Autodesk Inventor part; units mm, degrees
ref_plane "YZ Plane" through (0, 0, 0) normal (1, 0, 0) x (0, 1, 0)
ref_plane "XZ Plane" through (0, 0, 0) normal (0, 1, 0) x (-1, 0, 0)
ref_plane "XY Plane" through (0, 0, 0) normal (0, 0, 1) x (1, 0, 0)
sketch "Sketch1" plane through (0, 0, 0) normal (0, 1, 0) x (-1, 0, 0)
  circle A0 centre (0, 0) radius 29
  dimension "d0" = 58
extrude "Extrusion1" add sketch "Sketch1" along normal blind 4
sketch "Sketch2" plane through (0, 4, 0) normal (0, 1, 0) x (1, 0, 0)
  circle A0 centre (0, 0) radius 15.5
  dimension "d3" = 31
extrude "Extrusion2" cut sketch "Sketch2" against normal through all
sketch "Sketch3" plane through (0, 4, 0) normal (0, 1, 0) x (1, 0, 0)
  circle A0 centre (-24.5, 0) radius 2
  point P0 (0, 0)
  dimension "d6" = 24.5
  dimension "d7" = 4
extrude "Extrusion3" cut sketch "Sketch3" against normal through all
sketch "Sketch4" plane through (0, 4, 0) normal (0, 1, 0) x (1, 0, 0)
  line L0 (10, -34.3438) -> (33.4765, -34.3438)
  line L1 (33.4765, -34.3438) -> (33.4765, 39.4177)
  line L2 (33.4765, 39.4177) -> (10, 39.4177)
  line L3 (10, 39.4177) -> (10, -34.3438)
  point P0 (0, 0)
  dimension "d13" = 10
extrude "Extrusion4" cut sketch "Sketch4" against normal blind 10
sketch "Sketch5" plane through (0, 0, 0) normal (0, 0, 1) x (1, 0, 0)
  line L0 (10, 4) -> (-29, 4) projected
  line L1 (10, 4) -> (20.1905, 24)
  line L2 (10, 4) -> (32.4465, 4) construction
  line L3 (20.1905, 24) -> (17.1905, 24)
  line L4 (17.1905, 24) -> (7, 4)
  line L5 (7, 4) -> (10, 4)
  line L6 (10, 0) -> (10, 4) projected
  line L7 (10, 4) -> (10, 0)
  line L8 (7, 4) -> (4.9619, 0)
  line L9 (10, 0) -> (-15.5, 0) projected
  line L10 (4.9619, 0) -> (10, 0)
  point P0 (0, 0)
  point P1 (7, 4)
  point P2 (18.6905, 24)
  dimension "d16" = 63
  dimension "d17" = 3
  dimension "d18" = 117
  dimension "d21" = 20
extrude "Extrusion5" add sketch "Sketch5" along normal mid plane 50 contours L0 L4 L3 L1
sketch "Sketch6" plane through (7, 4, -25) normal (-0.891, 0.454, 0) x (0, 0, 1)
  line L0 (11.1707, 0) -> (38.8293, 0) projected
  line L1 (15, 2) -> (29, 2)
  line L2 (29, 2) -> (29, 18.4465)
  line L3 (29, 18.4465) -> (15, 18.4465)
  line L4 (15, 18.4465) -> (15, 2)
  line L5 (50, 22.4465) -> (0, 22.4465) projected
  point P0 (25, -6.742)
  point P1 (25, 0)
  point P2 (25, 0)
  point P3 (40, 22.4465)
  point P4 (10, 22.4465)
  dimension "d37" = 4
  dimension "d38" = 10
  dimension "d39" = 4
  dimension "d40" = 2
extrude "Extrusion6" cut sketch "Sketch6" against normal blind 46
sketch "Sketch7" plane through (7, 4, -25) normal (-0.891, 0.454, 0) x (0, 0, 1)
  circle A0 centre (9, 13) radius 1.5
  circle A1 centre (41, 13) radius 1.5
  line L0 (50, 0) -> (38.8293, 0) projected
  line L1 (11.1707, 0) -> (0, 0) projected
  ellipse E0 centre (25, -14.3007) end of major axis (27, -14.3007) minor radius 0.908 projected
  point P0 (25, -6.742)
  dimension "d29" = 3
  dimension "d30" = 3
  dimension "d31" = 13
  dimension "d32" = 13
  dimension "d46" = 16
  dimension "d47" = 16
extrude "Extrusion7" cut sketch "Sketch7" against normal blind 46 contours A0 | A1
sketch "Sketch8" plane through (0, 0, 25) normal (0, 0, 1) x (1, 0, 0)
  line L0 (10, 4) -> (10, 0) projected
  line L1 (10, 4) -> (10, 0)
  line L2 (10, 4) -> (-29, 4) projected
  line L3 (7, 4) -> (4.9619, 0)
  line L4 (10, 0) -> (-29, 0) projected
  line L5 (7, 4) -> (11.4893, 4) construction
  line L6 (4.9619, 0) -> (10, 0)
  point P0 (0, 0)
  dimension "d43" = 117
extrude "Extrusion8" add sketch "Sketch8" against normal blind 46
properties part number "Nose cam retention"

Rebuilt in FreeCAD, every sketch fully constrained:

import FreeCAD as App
import Part
import Sketcher
from FreeCAD import Vector
Q = App.Units.Quantity

doc = App.newDocument("Part")
params = doc.addObject("Spreadsheet::Sheet", "Params")
for row, (alias, value) in enumerate([
    ("sketch1_diameter", "58 mm"),
    ("pad1_length", "4 mm"),
    ("sketch2_diameter", "31 mm"),
    ("sketch3_diameter", "4 mm"),
    ("pocket3_length", "10 mm"),
    ("sketch5_width", "3 mm"),
    ("pad2_length", "50 mm"),
    ("sketch6_width", "14 mm"),
    ("pocket4_length", "46 mm"),
    ("sketch7_diameter", "3 mm"),
    ("pocket5_length", "46 mm"),
    ("sketch8_width", "3 mm"),
    ("sketch8_height", "4 mm"),
    ("pad3_length", "46 mm"),
], start=1):
    params.set(f"A{row}", alias)
    params.set(f"B{row}", "=" + value)
    params.setAlias(f"B{row}", alias)

body = doc.addObject("PartDesign::Body", "Body")

# Sketch on XZ plane
sketch1 = body.newObject("Sketcher::SketchObject", "Sketch")
sketch1.AttachmentSupport = (doc.getObject("XZ_Plane"), [""])
sketch1.MapMode = "FlatFace"
sketch1.addGeometry(Part.Circle(Vector(0, 0, 0), Vector(0, 0, 1), 29), False)
sketch1.addConstraint([
    Sketcher.Constraint("Coincident", 0, 3, -1, 1),
    Sketcher.Constraint("Diameter", 0, Q("58 mm")),
])
sketch1.setExpression("Constraints[1]", "Params.sketch1_diameter")
pad1 = body.newObject("PartDesign::Pad", "Pad")
pad1.Profile = sketch1
pad1.setExpression("Length", "Params.pad1_length")
pad1.Reversed = True

# Sketch on XZ plane
sketch2 = body.newObject("Sketcher::SketchObject", "Sketch001")
sketch2.AttachmentSupport = (doc.getObject("XZ_Plane"), [""])
sketch2.MapMode = "FlatFace"
sketch2.AttachmentOffset = App.Placement(Vector(0, 0, -4), App.Rotation())
sketch2.addGeometry(Part.Circle(Vector(0, 0, 0), Vector(0, 0, 1), 16), False)
sketch2.addConstraint([
    Sketcher.Constraint("Coincident", 0, 3, -1, 1),
    Sketcher.Constraint("Diameter", 0, Q("31 mm")),
])
sketch2.setExpression("Constraints[1]", "Params.sketch2_diameter")
pocket1 = body.newObject("PartDesign::Pocket", "Pocket")
pocket1.Profile = sketch2
pocket1.Type = "ThroughAll"
pocket1.Reversed = True

# Sketch on XZ plane
sketch3 = body.newObject("Sketcher::SketchObject", "Sketch002")
sketch3.AttachmentSupport = (doc.getObject("XZ_Plane"), [""])
sketch3.MapMode = "FlatFace"
sketch3.AttachmentOffset = App.Placement(Vector(0, 0, -4), App.Rotation())
sketch3.addGeometry(Part.Circle(Vector(-24.5, 0, 0), Vector(0, 0, 1), 2), False)
sketch3.addConstraint([
    Sketcher.Constraint("PointOnObject", 0, 3, -1),
    Sketcher.Constraint("Diameter", 0, Q("4 mm")),
    Sketcher.Constraint("DistanceX", 0, 3, -1, 1, Q("24.5 mm")),
])
sketch3.setExpression("Constraints[1]", "Params.sketch3_diameter")
pocket2 = body.newObject("PartDesign::Pocket", "Pocket001")
pocket2.Profile = sketch3
pocket2.Type = "ThroughAll"
pocket2.Reversed = True

# Sketch on XZ plane
sketch4 = body.newObject("Sketcher::SketchObject", "Sketch003")
sketch4.AttachmentSupport = (doc.getObject("XZ_Plane"), [""])
sketch4.MapMode = "FlatFace"
sketch4.AttachmentOffset = App.Placement(Vector(0, 0, -4), App.Rotation())
sketch4.addGeometry([
    Part.LineSegment(Vector(10, -39, 0), Vector(10, 34, 0)),
    Part.LineSegment(Vector(10, 34, 0), Vector(33, 34, 0)),
    Part.LineSegment(Vector(33, 34, 0), Vector(33, -39, 0)),
    Part.LineSegment(Vector(33, -39, 0), Vector(10, -39, 0)),
], False)
sketch4.addConstraint([
    Sketcher.Constraint("Coincident", 0, 2, 1, 1),
    Sketcher.Constraint("Coincident", 1, 2, 2, 1),
    Sketcher.Constraint("Coincident", 2, 2, 3, 1),
    Sketcher.Constraint("Coincident", 3, 2, 0, 1),
    Sketcher.Constraint("Vertical", 0),
    Sketcher.Constraint("Horizontal", 1),
    Sketcher.Constraint("Vertical", 2),
    Sketcher.Constraint("Horizontal", 3),
    Sketcher.Constraint("DistanceX", -1, 1, 0, 2, Q("10 mm")),
    Sketcher.Constraint("DistanceX", 1, 1, 1, 2, Q("23.4765 mm")),
    Sketcher.Constraint("DistanceY", 0, 1, 0, 2, Q("73.7615 mm")),
    Sketcher.Constraint("DistanceY", -1, 1, 0, 2, Q("34.3438 mm")),
])
pocket3 = body.newObject("PartDesign::Pocket", "Pocket002")
pocket3.Profile = sketch4
pocket3.setExpression("Length", "Params.pocket3_length")
pocket3.Reversed = True

# Sketch on XY plane
sketch5 = body.newObject("Sketcher::SketchObject", "Sketch004")
sketch5.AttachmentSupport = (doc.getObject("XY_Plane"), [""])
sketch5.MapMode = "FlatFace"
sketch5.addGeometry([
    Part.LineSegment(Vector(7, 4, 0), Vector(10, 4, 0)),
    Part.LineSegment(Vector(10, 4, 0), Vector(20.2, 24, 0)),
    Part.LineSegment(Vector(20.2, 24, 0), Vector(17.2, 24, 0)),
    Part.LineSegment(Vector(17.2, 24, 0), Vector(7, 4, 0)),
], False)
sketch5.addConstraint([
    Sketcher.Constraint("Coincident", 0, 2, 1, 1),
    Sketcher.Constraint("Coincident", 1, 2, 2, 1),
    Sketcher.Constraint("Coincident", 2, 2, 3, 1),
    Sketcher.Constraint("Coincident", 3, 2, 0, 1),
    Sketcher.Constraint("Horizontal", 0),
    Sketcher.Constraint("Horizontal", 2),
    Sketcher.Constraint("Parallel", 1, 3),
    Sketcher.Constraint("DistanceX", 0, 1, 0, 2, Q("3 mm")),
    Sketcher.Constraint("Angle", 1, Q("63 deg")),
    Sketcher.Constraint("DistanceY", 0, 2, 1, 2, Q("20 mm")),
    Sketcher.Constraint("DistanceX", -1, 1, 0, 2, Q("10 mm")),
    Sketcher.Constraint("DistanceY", -1, 1, 0, 2, Q("4 mm")),
])
sketch5.setExpression("Constraints[7]", "Params.sketch5_width")
pad2 = body.newObject("PartDesign::Pad", "Pad001")
pad2.Profile = sketch5
pad2.setExpression("Length", "Params.pad2_length")
pad2.Midplane = True

# Sketch on an angled plane
sketch6 = body.newObject("Sketcher::SketchObject", "Sketch005")
sketch6.Placement = App.Placement(Vector(7, 4, -25), App.Rotation(Vector(0, 0, 1), Vector(0.4539905, 0.891006524, 0), Vector(-0.891006524, 0.4539905, 0), "ZXY"))
sketch6.addGeometry([
    Part.LineSegment(Vector(15, 18, 0), Vector(15, 2, 0)),
    Part.LineSegment(Vector(15, 2, 0), Vector(29, 2, 0)),
    Part.LineSegment(Vector(29, 2, 0), Vector(29, 18, 0)),
    Part.LineSegment(Vector(29, 18, 0), Vector(15, 18, 0)),
], False)
sketch6.addConstraint([
    Sketcher.Constraint("Coincident", 0, 2, 1, 1),
    Sketcher.Constraint("Coincident", 1, 2, 2, 1),
    Sketcher.Constraint("Coincident", 2, 2, 3, 1),
    Sketcher.Constraint("Coincident", 3, 2, 0, 1),
    Sketcher.Constraint("Vertical", 0),
    Sketcher.Constraint("Horizontal", 1),
    Sketcher.Constraint("Vertical", 2),
    Sketcher.Constraint("Horizontal", 3),
    Sketcher.Constraint("DistanceY", -1, 1, 0, 2, Q("2 mm")),
    Sketcher.Constraint("DistanceX", 1, 1, 1, 2, Q("14 mm")),
    Sketcher.Constraint("DistanceX", -1, 1, 0, 2, Q("15 mm")),
    Sketcher.Constraint("DistanceY", 0, 2, 0, 1, Q("16.4465 mm")),
])
sketch6.setExpression("Constraints[9]", "Params.sketch6_width")
pocket4 = body.newObject("PartDesign::Pocket", "Pocket003")
pocket4.Profile = sketch6
pocket4.setExpression("Length", "Params.pocket4_length")

# Sketch on an angled plane
sketch7 = body.newObject("Sketcher::SketchObject", "Sketch006")
sketch7.Placement = App.Placement(Vector(7, 4, -25), App.Rotation(Vector(0, 0, 1), Vector(0.4539905, 0.891006524, 0), Vector(-0.891006524, 0.4539905, 0), "ZXY"))
sketch7.addGeometry([
    Part.Circle(Vector(9, 13, 0), Vector(0, 0, 1), 1.5),
    Part.Circle(Vector(41, 13, 0), Vector(0, 0, 1), 1.5),
], False)
sketch7.addConstraint([
    Sketcher.Constraint("Equal", 0, 1),
    Sketcher.Constraint("Horizontal", 0, 3, 1, 3),
    Sketcher.Constraint("Diameter", 0, Q("3 mm")),
    Sketcher.Constraint("DistanceY", -1, 1, 0, 3, Q("13 mm")),
    Sketcher.Constraint("DistanceX", -1, 1, 0, 3, Q("9 mm")),
    Sketcher.Constraint("DistanceX", -1, 1, 1, 3, Q("41 mm")),
])
sketch7.setExpression("Constraints[2]", "Params.sketch7_diameter")
pocket5 = body.newObject("PartDesign::Pocket", "Pocket004")
pocket5.Profile = sketch7
pocket5.setExpression("Length", "Params.pocket5_length")

# Sketch on XY plane
sketch8 = body.newObject("Sketcher::SketchObject", "Sketch007")
sketch8.AttachmentSupport = (doc.getObject("XY_Plane"), [""])
sketch8.MapMode = "FlatFace"
sketch8.AttachmentOffset = App.Placement(Vector(0, 0, 25), App.Rotation())
sketch8.addGeometry([
    Part.LineSegment(Vector(10, 0, 0), Vector(10, 4, 0)),
    Part.LineSegment(Vector(10, 4, 0), Vector(7, 4, 0)),
    Part.LineSegment(Vector(7, 4, 0), Vector(5, 0, 0)),
    Part.LineSegment(Vector(5, 0, 0), Vector(10, 0, 0)),
], False)
sketch8.addConstraint([
    Sketcher.Constraint("Coincident", 0, 2, 1, 1),
    Sketcher.Constraint("Coincident", 1, 2, 2, 1),
    Sketcher.Constraint("Coincident", 2, 2, 3, 1),
    Sketcher.Constraint("Coincident", 3, 2, 0, 1),
    Sketcher.Constraint("Vertical", 0),
    Sketcher.Constraint("Horizontal", 1),
    Sketcher.Constraint("Horizontal", 3),
    Sketcher.Constraint("PointOnObject", 2, 2, -1),
    Sketcher.Constraint("Angle", 2, Q("-117 deg")),
    Sketcher.Constraint("DistanceX", 1, 2, 1, 1, Q("3 mm")),
    Sketcher.Constraint("DistanceY", 0, 1, 0, 2, Q("4 mm")),
    Sketcher.Constraint("DistanceX", -1, 1, 0, 2, Q("10 mm")),
])
sketch8.setExpression("Constraints[9]", "Params.sketch8_width")
sketch8.setExpression("Constraints[10]", "Params.sketch8_height")
pad3 = body.newObject("PartDesign::Pad", "Pad002")
pad3.Profile = sketch8
pad3.setExpression("Length", "Params.pad3_length")
pad3.Reversed = True

doc.recompute()
